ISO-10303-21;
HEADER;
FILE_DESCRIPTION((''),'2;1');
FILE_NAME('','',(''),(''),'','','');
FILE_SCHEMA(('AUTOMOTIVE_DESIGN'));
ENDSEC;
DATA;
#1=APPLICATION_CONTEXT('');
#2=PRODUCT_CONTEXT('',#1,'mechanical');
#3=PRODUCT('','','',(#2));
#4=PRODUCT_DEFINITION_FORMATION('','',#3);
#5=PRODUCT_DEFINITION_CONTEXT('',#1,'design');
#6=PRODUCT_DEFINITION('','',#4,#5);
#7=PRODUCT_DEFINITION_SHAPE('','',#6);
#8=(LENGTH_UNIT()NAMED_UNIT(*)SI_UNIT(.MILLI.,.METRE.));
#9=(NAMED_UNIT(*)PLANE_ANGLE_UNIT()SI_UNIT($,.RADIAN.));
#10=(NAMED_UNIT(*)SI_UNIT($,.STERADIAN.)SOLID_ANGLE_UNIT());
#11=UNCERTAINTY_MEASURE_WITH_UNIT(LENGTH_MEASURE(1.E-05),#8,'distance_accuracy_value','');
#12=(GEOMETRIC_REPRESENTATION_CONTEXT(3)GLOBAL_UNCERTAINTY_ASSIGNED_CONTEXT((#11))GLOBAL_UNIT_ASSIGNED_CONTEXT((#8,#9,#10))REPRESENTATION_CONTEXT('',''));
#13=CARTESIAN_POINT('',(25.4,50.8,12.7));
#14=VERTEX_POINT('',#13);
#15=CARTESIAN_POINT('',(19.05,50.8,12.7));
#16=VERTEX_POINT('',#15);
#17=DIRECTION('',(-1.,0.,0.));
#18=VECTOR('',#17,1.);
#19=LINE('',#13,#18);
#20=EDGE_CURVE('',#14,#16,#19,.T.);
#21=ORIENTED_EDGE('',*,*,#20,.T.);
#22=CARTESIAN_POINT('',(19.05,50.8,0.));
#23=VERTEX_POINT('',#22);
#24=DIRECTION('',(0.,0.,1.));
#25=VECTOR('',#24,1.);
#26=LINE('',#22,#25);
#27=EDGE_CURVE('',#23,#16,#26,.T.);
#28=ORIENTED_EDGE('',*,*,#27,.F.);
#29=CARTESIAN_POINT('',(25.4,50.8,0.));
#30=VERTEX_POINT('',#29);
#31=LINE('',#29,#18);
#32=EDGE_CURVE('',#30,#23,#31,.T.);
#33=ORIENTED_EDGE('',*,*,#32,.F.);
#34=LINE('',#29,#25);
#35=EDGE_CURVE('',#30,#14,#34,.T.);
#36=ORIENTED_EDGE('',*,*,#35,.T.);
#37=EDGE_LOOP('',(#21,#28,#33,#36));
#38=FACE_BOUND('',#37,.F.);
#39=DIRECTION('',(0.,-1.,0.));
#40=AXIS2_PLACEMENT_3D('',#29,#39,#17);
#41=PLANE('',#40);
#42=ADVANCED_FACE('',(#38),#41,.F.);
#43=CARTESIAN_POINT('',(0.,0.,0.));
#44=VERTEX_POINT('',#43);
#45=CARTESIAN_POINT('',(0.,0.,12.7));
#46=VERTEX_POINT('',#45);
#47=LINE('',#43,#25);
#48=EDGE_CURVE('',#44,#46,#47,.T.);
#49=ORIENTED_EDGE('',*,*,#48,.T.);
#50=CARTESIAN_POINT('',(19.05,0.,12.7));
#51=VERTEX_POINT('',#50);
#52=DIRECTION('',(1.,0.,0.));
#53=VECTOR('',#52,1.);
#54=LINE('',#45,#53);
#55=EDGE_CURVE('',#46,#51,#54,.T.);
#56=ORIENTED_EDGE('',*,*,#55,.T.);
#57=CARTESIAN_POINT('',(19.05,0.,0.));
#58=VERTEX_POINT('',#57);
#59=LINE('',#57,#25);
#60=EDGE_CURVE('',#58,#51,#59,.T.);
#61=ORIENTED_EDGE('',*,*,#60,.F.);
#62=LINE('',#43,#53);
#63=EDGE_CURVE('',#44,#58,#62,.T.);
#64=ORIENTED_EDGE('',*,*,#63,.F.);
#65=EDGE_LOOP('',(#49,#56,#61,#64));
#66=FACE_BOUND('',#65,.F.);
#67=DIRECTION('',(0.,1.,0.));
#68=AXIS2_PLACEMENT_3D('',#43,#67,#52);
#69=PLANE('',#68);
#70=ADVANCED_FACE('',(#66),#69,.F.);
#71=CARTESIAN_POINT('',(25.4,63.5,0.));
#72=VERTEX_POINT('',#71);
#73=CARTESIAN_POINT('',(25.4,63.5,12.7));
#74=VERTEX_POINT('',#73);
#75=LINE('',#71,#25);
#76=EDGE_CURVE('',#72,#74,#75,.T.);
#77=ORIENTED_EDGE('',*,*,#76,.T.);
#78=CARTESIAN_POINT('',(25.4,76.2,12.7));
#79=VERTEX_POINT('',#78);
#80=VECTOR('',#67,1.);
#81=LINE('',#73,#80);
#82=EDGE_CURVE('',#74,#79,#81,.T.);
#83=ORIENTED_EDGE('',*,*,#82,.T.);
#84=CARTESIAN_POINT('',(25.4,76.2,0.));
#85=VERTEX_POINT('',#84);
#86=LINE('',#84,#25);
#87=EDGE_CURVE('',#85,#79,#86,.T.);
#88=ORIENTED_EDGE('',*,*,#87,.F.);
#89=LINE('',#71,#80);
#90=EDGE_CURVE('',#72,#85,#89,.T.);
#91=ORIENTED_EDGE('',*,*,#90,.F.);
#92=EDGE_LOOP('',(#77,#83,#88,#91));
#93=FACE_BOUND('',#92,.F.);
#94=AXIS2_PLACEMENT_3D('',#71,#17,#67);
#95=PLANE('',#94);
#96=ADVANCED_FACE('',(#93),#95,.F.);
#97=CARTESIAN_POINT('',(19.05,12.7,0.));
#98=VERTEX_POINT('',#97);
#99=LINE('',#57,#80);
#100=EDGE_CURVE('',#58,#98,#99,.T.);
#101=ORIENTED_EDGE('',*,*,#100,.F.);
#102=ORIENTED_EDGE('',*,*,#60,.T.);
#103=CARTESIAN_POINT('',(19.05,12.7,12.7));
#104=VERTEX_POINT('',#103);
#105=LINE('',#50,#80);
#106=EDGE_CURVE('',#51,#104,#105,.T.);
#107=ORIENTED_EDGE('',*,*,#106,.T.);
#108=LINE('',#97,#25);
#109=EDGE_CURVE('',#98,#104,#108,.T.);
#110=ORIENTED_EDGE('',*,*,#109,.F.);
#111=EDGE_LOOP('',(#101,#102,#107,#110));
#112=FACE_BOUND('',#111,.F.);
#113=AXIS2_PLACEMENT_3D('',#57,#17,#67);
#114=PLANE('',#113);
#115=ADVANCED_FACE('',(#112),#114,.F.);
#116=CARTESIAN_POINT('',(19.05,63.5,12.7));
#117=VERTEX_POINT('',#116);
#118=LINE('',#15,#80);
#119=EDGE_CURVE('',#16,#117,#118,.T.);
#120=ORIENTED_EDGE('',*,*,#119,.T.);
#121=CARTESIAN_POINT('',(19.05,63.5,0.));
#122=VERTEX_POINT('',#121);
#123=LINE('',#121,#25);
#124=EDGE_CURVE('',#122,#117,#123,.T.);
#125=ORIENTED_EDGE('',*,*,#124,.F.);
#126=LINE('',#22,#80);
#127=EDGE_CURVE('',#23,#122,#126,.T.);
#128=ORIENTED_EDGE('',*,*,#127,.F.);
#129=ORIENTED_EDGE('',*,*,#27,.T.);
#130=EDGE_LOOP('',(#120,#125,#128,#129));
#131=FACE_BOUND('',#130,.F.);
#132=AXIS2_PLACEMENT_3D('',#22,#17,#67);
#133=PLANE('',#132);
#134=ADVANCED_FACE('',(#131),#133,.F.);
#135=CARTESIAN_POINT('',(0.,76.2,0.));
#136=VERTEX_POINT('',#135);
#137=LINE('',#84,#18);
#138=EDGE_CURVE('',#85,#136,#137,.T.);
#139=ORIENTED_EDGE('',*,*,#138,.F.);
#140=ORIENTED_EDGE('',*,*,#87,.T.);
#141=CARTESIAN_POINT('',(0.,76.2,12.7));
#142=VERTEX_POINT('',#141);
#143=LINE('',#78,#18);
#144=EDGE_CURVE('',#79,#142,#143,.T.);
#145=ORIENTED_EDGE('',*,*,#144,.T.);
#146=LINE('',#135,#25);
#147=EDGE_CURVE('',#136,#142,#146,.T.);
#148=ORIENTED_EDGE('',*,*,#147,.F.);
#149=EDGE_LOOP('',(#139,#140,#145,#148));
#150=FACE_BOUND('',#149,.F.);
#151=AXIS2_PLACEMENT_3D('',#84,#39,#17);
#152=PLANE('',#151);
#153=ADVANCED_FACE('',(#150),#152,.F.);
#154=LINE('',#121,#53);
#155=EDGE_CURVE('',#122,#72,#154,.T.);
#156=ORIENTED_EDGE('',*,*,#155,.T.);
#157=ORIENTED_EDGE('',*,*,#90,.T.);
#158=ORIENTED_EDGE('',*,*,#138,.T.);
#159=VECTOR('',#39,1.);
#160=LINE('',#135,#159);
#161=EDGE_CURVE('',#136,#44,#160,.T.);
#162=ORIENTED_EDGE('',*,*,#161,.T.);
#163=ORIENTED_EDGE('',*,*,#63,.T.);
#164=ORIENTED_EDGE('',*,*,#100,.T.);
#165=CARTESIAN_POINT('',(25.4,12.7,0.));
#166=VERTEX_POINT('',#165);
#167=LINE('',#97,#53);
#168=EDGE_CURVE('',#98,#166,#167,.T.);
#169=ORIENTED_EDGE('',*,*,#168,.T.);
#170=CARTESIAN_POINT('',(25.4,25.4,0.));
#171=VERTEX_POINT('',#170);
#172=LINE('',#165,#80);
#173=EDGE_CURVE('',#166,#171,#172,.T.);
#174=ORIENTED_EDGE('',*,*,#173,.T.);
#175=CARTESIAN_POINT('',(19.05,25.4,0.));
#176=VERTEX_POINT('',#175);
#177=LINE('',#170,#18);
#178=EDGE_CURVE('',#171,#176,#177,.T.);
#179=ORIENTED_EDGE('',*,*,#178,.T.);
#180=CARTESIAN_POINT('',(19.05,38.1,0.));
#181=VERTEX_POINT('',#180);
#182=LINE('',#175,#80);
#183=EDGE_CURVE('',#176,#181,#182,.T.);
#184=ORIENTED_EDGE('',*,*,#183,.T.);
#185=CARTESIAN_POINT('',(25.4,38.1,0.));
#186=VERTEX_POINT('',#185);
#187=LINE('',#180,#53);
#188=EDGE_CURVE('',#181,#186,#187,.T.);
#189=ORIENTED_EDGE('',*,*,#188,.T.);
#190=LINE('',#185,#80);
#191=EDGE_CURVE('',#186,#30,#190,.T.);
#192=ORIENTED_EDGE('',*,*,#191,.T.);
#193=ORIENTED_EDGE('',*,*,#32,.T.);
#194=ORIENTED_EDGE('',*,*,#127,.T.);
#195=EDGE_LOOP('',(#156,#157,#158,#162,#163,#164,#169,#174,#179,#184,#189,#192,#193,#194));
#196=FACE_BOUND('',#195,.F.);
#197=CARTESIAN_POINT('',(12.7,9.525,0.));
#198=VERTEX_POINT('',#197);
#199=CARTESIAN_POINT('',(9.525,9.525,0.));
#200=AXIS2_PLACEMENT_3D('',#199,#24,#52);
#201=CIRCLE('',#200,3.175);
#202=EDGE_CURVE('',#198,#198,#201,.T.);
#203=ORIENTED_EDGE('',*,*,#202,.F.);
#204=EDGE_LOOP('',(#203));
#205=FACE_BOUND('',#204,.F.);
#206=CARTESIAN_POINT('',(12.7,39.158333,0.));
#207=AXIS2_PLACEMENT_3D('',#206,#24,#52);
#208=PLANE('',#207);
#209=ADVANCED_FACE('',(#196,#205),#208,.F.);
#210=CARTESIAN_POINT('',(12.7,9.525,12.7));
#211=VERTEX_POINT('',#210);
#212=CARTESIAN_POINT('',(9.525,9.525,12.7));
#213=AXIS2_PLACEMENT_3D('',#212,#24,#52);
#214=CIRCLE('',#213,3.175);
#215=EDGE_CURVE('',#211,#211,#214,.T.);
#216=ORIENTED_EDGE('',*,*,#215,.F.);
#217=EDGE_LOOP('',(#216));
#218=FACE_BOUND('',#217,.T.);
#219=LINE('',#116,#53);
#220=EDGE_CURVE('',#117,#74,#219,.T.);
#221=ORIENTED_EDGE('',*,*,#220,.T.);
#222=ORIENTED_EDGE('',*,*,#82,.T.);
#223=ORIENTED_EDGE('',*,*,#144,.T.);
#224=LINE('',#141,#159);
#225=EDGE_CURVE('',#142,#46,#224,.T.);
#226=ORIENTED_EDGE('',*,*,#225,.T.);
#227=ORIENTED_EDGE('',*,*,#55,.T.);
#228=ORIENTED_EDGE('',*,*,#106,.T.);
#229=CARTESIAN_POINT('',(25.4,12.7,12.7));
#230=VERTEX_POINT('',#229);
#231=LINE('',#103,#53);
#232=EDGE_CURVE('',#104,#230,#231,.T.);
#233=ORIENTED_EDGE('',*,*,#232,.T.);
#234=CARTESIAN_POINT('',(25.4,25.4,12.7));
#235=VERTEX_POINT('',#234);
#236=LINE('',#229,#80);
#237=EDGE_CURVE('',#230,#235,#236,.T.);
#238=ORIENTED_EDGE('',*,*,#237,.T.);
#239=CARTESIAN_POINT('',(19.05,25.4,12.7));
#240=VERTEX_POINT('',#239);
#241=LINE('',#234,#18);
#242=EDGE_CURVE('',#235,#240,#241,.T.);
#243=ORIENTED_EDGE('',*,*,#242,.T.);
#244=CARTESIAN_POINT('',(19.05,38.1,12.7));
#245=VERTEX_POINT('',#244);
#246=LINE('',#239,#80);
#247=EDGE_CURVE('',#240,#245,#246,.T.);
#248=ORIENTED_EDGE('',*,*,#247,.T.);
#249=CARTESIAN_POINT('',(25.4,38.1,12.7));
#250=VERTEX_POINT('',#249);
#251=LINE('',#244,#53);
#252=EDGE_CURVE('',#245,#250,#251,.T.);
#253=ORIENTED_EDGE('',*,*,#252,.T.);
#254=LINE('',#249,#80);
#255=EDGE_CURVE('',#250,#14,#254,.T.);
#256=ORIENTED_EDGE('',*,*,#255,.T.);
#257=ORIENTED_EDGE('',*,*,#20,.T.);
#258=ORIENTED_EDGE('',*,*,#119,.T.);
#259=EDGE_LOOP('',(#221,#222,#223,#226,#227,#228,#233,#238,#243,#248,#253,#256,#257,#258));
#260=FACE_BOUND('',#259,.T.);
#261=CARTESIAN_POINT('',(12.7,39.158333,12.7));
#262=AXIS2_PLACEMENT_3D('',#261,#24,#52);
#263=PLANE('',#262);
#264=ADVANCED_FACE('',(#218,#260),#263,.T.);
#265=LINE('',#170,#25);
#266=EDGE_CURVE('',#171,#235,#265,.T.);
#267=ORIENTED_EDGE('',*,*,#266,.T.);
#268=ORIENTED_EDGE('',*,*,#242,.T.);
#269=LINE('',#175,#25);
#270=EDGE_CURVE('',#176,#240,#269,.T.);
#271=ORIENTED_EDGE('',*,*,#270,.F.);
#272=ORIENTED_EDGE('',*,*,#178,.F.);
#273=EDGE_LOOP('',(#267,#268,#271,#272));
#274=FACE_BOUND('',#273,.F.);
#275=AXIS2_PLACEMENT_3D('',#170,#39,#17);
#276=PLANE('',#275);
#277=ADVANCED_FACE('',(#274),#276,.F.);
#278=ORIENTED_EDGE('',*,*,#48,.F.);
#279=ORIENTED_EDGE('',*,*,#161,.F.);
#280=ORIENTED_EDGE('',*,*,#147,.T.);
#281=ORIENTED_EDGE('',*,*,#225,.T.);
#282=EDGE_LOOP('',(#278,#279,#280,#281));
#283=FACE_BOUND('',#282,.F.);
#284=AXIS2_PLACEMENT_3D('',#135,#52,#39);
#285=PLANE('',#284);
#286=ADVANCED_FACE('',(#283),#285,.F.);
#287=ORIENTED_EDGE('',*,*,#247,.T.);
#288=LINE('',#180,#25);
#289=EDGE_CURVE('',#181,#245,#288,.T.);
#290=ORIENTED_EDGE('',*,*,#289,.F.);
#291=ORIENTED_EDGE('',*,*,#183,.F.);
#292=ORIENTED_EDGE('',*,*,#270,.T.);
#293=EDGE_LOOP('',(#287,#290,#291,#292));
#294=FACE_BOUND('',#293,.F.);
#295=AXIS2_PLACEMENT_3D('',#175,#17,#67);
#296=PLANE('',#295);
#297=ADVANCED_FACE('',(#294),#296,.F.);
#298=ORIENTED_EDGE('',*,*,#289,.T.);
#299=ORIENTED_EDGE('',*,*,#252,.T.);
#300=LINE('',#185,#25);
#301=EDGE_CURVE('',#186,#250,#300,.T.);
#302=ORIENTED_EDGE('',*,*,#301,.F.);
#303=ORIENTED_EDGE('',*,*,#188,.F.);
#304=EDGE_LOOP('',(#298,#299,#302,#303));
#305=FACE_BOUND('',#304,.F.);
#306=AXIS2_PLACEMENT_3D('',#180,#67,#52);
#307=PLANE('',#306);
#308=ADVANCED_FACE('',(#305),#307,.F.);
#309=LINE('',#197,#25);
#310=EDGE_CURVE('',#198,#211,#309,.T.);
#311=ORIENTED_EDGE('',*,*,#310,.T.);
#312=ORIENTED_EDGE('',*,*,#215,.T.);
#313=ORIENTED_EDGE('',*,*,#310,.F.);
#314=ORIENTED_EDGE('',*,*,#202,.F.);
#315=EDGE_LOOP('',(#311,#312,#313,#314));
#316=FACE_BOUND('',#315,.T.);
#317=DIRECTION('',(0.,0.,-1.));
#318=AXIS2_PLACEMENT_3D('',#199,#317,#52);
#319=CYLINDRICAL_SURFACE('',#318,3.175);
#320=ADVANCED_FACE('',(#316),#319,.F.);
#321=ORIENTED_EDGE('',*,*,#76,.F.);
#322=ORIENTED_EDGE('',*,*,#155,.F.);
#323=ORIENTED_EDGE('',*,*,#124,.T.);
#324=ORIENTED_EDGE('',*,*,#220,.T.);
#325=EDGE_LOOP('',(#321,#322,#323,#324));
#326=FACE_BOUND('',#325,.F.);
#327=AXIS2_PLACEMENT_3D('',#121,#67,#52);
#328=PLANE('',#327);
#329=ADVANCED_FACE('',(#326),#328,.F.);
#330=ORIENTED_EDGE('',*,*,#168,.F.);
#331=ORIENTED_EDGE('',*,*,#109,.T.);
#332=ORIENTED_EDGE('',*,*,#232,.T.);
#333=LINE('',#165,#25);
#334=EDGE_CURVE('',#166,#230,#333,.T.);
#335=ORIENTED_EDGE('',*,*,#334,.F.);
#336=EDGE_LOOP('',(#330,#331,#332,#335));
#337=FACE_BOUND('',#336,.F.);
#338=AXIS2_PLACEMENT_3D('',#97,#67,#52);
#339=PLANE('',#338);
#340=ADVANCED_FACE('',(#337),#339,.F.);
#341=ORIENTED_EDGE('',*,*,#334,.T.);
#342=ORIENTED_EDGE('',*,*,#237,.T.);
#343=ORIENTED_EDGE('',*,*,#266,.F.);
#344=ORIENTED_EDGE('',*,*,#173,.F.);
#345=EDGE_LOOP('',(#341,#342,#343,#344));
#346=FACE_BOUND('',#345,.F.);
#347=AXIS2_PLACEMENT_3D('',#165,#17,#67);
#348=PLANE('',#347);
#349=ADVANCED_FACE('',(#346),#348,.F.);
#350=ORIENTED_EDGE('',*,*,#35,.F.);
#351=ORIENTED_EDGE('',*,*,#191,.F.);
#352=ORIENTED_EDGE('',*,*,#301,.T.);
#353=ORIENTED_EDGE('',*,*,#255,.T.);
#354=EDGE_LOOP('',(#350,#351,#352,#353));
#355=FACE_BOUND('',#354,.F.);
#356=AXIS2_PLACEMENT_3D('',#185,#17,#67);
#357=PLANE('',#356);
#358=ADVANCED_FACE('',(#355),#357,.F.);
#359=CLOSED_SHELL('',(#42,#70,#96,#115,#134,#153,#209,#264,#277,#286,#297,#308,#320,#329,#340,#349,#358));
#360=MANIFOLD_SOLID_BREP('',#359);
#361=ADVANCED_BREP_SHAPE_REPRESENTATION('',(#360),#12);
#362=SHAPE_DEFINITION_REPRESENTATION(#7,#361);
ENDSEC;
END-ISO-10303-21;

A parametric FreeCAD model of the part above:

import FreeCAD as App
import Part
import Sketcher
Q = App.Units.Quantity


def add_polygon(sketch, points):
    """Adds a closed chain of lines whose ends are joined by coincident constraints."""
    first, n = sketch.GeometryCount, len(points)
    for a, b in zip(points, points[1:] + points[:1]):
        sketch.addGeometry(Part.LineSegment(App.Vector(*a, 0), App.Vector(*b, 0)), False)
    for i in range(n):
        sketch.addConstraint(Sketcher.Constraint("Coincident", first + i, 2, first + (i + 1) % n, 1))

doc = App.newDocument("Part")
body = doc.addObject("PartDesign::Body", "Body")

sketch1 = body.newObject("Sketcher::SketchObject", "Sketch")
sketch1.AttachmentSupport = (doc.getObject("XY_Plane"), [""])
sketch1.MapMode = "FlatFace"
add_polygon(sketch1, [(0, 76.2), (0, 0), (19.1, 0), (19.1, 12.7), (25.4, 12.7), (25.4, 25.4), (19.1, 25.4), (19.1, 38.1), (25.4, 38.1), (25.4, 50.8), (19.1, 50.8), (19.1, 63.5), (25.4, 63.5), (25.4, 76.2)])
sketch1.addGeometry(Part.Circle(App.Vector(9.5, 9.5, 0), App.Vector(0, 0, 1), 3.2), False)
sketch1.addConstraint([
    Sketcher.Constraint("Vertical", 0),
    Sketcher.Constraint("Horizontal", 1),
    Sketcher.Constraint("Vertical", 2),
    Sketcher.Constraint("Horizontal", 3),
    Sketcher.Constraint("Vertical", 4),
    Sketcher.Constraint("Horizontal", 5),
    Sketcher.Constraint("Vertical", 6),
    Sketcher.Constraint("Horizontal", 7),
    Sketcher.Constraint("Vertical", 8),
    Sketcher.Constraint("Horizontal", 9),
    Sketcher.Constraint("Vertical", 10),
    Sketcher.Constraint("Horizontal", 11),
    Sketcher.Constraint("Vertical", 12),
    Sketcher.Constraint("Horizontal", 13),
    Sketcher.Constraint("Coincident", 0, 2, -1, 1),
    Sketcher.Constraint("Vertical", 2, 2, 5, 2),
    Sketcher.Constraint("Vertical", 4, 2, 7, 2),
    Sketcher.Constraint("Vertical", 6, 2, 9, 2),
    Sketcher.Constraint("Vertical", 8, 2, 11, 2),
    Sketcher.Constraint("Equal", 2, 4),
    Sketcher.Constraint("Equal", 4, 6),
    Sketcher.Constraint("Equal", 6, 8),
    Sketcher.Constraint("Equal", 8, 10),
    Sketcher.Constraint("Equal", 10, 12),
    Sketcher.Constraint("Diameter", 14, Q("0.25 in")),
    Sketcher.Constraint("DistanceX", 13, 2, 13, 1, Q("1 in")),
    Sketcher.Constraint("DistanceY", 0, 2, 0, 1, Q("3 in")),
    Sketcher.Constraint("DistanceX", 1, 1, 1, 2, Q("0.75 in")),
    Sketcher.Constraint("DistanceX", -1, 1, 14, 3, Q("0.375 in")),
    Sketcher.Constraint("DistanceY", -1, 1, 14, 3, Q("0.375 in")),
])
pad1 = body.newObject("PartDesign::Pad", "Pad")
pad1.Profile = sketch1
pad1.Length = Q("0.5 in")

doc.recompute()
